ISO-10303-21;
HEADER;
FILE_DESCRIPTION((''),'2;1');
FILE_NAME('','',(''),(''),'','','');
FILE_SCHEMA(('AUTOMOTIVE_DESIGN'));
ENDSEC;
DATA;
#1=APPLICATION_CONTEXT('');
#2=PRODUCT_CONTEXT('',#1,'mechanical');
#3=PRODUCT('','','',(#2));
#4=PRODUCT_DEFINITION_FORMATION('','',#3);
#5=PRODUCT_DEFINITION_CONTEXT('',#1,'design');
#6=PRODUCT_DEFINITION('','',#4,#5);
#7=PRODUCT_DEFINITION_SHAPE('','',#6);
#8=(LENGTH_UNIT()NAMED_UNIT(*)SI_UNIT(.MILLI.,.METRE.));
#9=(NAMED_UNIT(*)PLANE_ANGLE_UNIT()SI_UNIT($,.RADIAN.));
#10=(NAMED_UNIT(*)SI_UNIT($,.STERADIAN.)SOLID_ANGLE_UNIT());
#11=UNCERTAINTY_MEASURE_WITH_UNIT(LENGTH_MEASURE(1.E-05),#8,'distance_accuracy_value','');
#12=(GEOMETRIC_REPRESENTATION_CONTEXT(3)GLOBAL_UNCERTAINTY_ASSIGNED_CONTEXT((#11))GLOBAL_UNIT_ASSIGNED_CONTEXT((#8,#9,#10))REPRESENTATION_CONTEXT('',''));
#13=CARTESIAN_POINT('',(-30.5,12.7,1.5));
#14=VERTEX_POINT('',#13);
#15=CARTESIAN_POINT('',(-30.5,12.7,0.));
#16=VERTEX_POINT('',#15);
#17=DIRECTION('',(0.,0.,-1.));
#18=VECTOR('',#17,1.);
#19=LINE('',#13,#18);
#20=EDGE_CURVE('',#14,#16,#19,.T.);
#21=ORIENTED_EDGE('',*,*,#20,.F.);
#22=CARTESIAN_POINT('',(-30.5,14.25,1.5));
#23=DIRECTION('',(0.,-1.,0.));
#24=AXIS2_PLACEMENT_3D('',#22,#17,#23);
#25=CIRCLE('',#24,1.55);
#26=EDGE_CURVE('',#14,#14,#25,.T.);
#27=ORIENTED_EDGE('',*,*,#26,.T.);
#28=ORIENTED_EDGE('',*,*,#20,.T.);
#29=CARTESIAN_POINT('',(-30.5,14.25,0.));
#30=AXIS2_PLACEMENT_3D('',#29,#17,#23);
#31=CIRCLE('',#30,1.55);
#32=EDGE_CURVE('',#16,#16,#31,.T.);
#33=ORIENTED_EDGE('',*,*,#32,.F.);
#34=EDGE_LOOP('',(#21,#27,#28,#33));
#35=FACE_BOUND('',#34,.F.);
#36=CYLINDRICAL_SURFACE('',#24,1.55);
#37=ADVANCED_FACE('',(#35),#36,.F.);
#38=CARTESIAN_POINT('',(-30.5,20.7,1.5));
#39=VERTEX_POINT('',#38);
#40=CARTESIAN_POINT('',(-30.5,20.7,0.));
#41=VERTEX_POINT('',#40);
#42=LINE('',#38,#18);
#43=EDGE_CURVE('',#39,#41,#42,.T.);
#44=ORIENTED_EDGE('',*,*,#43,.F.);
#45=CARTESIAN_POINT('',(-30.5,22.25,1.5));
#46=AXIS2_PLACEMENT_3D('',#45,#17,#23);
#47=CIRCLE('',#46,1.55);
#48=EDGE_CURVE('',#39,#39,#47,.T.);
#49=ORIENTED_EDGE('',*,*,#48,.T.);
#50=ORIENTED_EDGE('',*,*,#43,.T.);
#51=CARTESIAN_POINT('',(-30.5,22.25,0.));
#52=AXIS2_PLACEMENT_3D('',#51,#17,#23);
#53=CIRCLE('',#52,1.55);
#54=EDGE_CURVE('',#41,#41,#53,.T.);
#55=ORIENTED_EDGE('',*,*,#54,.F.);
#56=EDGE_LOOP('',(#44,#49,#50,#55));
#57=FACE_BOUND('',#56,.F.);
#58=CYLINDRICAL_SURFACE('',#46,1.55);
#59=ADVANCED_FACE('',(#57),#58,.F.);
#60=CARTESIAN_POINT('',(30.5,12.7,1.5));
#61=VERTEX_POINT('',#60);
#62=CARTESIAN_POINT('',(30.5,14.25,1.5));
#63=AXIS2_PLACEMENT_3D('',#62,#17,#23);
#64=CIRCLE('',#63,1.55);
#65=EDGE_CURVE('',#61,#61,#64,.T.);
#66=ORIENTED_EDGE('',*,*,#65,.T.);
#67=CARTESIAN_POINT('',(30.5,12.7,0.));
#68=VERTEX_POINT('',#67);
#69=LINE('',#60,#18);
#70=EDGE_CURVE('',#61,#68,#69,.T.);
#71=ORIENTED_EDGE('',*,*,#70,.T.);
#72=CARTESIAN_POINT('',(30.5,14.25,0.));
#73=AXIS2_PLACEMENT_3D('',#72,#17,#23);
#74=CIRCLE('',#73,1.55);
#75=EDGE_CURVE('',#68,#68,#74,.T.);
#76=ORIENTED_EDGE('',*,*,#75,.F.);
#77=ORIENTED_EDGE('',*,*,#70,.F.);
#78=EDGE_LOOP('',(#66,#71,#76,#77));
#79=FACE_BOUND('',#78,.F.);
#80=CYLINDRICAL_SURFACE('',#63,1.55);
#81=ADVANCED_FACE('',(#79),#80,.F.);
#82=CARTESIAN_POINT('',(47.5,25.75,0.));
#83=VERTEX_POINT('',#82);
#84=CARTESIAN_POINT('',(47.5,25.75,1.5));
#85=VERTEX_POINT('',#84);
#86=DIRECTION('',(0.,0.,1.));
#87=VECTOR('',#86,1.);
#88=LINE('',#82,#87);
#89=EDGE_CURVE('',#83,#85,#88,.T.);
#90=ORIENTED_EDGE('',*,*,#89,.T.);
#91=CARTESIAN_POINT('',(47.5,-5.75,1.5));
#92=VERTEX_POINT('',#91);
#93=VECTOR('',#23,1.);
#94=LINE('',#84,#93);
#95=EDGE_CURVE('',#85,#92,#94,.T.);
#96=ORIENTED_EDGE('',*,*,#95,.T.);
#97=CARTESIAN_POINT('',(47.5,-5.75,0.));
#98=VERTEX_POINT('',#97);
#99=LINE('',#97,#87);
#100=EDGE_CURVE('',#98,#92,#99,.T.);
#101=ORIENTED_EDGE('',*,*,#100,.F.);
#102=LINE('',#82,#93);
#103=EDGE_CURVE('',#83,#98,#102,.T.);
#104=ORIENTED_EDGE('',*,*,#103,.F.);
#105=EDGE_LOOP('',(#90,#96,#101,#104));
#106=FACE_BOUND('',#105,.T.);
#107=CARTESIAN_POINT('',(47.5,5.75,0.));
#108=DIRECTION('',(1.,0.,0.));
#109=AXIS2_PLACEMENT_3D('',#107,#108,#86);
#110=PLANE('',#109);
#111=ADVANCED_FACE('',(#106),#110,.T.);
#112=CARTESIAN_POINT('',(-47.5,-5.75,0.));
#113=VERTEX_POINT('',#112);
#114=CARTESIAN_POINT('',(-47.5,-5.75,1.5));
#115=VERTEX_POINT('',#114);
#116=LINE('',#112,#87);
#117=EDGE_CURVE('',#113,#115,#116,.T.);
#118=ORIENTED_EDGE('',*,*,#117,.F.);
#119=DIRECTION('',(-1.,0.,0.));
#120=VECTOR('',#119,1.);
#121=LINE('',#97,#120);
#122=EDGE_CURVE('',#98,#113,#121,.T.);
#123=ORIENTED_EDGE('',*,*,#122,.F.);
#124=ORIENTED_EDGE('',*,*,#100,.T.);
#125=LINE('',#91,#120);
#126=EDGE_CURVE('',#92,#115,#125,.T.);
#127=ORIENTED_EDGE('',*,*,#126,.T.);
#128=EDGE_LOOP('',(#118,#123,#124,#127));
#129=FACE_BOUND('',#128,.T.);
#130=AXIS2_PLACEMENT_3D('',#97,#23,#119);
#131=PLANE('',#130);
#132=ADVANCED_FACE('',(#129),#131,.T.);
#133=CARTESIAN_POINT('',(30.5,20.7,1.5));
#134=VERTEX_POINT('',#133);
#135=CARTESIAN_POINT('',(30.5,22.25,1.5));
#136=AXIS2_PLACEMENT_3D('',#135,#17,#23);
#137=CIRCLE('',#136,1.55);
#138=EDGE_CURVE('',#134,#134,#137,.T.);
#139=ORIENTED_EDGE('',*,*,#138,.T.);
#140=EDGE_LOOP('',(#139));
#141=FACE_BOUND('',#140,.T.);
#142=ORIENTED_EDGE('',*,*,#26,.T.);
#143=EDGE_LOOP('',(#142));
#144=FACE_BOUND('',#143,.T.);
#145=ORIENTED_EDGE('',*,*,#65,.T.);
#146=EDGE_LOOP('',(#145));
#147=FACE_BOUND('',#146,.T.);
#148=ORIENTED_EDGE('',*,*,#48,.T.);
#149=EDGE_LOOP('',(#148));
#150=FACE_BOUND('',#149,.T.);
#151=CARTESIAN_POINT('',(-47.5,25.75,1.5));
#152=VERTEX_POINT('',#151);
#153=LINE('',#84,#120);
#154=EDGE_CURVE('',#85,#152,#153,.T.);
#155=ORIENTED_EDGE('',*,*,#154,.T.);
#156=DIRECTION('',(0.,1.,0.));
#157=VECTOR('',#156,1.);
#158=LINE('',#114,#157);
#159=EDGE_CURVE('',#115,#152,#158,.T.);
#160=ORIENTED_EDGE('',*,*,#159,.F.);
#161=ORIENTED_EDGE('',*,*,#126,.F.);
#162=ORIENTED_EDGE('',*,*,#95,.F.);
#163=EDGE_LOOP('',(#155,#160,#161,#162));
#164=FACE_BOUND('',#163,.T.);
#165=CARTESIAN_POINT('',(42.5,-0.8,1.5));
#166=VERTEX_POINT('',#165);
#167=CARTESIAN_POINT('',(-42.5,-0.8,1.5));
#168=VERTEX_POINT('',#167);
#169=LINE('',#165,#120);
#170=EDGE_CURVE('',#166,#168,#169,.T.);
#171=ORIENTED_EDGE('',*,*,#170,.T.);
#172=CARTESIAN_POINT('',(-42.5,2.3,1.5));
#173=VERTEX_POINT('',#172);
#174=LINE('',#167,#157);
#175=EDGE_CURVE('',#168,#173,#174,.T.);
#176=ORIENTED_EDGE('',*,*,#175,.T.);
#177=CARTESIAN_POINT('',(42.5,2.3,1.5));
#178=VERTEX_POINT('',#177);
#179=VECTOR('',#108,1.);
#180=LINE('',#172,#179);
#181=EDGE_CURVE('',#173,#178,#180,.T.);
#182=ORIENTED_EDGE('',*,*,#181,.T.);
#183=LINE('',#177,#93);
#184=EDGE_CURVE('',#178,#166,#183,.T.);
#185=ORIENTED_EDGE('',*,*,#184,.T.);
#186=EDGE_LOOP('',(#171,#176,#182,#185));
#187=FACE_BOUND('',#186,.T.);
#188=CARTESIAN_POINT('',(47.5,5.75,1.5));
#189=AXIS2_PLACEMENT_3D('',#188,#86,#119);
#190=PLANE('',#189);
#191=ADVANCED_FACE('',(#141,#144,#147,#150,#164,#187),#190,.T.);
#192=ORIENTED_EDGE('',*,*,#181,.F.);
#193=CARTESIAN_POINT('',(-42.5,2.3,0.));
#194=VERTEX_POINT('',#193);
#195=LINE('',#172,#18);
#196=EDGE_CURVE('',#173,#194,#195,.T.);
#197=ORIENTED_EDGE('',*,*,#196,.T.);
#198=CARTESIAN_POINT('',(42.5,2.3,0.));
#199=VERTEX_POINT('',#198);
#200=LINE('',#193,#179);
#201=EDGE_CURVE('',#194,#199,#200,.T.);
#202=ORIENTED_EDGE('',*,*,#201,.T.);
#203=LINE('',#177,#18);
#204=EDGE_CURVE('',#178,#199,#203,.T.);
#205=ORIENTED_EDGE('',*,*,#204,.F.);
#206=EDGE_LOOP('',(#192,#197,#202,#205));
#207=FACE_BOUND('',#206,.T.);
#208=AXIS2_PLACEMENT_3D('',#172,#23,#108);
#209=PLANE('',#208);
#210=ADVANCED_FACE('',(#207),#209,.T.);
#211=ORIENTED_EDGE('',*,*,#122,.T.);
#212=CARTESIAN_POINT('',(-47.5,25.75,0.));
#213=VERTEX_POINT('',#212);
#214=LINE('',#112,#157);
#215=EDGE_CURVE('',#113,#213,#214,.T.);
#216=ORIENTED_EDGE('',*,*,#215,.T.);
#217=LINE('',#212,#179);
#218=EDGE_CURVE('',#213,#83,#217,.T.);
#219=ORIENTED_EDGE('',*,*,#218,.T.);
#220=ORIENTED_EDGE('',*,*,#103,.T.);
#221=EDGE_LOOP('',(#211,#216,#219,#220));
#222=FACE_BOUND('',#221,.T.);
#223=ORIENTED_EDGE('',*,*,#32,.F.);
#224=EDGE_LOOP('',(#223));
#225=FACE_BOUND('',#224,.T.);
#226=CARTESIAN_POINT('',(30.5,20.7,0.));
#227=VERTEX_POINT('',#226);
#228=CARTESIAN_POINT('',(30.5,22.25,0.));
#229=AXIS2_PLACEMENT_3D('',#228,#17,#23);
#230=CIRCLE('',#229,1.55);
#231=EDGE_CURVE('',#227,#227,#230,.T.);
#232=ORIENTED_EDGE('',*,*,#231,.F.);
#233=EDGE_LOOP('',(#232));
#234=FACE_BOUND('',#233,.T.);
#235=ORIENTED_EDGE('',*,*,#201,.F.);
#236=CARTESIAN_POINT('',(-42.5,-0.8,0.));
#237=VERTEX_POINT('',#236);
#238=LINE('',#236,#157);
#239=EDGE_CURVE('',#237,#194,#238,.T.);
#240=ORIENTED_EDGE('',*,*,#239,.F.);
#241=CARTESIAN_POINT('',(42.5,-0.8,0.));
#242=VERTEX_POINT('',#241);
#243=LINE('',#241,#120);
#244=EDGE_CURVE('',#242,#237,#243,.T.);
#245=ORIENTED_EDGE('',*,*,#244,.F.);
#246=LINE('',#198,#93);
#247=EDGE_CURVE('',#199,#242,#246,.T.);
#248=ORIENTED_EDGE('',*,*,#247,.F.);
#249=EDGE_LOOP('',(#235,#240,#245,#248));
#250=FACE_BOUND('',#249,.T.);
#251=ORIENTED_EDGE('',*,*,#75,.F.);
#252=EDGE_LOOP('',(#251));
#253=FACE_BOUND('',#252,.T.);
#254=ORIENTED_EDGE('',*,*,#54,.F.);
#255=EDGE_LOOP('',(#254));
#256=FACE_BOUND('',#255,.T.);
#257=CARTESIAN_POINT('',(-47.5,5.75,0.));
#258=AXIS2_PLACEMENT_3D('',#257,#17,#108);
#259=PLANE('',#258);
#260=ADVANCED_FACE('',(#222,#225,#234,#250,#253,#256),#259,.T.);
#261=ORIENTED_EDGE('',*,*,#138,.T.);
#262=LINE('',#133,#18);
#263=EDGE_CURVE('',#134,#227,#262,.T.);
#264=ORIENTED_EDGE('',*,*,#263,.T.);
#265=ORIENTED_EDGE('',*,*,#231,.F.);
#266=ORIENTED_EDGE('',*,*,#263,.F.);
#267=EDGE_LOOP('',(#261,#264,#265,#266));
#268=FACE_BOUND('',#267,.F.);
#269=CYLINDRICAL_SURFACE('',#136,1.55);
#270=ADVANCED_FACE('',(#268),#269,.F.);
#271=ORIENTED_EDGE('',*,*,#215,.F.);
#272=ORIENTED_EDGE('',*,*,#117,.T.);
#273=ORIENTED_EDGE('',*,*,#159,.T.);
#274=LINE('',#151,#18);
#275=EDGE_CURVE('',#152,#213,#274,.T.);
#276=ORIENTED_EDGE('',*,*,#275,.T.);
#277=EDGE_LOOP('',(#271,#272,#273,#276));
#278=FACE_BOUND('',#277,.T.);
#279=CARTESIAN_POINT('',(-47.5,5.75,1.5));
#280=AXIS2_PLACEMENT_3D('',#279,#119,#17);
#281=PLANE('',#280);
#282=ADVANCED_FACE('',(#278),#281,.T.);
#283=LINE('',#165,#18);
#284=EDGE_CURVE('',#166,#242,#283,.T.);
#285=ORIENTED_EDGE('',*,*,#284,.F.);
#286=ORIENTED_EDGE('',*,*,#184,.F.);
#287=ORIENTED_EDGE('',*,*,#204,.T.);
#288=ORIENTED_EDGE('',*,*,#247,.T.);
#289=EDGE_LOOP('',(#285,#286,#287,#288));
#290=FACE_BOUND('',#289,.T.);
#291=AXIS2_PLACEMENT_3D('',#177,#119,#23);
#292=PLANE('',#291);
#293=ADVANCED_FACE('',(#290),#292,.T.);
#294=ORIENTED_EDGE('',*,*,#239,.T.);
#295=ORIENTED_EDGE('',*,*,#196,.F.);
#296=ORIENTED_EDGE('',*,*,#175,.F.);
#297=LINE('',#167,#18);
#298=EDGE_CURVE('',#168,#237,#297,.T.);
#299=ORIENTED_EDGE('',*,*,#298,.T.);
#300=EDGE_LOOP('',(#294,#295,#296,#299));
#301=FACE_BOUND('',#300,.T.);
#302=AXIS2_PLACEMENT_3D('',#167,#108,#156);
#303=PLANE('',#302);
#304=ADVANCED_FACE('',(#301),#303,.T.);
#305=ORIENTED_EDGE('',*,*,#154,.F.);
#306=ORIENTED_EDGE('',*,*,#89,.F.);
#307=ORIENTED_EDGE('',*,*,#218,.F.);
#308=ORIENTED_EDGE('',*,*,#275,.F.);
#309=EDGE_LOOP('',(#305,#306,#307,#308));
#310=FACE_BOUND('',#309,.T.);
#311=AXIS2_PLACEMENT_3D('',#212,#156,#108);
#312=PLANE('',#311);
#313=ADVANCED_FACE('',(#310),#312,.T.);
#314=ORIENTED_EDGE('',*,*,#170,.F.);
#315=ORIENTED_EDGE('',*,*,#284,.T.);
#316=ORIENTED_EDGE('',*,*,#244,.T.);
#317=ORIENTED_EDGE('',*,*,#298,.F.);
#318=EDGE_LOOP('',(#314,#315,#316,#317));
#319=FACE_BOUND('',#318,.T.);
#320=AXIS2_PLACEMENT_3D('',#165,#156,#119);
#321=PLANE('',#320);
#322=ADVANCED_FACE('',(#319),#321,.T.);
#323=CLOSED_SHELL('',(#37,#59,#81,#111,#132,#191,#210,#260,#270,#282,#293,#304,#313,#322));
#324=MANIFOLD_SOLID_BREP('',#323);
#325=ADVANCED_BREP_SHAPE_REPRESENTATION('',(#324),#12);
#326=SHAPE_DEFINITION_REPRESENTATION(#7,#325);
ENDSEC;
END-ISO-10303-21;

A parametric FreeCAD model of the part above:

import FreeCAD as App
import Part
import Sketcher


def add_polygon(sketch, points):
    """Adds a closed chain of lines whose ends are joined by coincident constraints."""
    first, n = sketch.GeometryCount, len(points)
    for a, b in zip(points, points[1:] + points[:1]):
        sketch.addGeometry(Part.LineSegment(App.Vector(*a, 0), App.Vector(*b, 0)), False)
    for i in range(n):
        sketch.addConstraint(Sketcher.Constraint("Coincident", first + i, 2, first + (i + 1) % n, 1))

doc = App.newDocument("Part")
body = doc.addObject("PartDesign::Body", "Body")

sketch1 = body.newObject("Sketcher::SketchObject", "Sketch")
sketch1.AttachmentSupport = (doc.getObject("XY_Plane"), [""])
sketch1.MapMode = "FlatFace"
add_polygon(sketch1, [(48, 6), (-48, 6), (-48, -6), (48, -6)])
sketch1.addConstraint(Sketcher.Constraint("Horizontal", 0))
sketch1.addConstraint(Sketcher.Constraint("Vertical", 1))
sketch1.addConstraint(Sketcher.Constraint("Horizontal", 2))
sketch1.addConstraint(Sketcher.Constraint("Vertical", 3))
sketch1.addConstraint(Sketcher.Constraint("Symmetric", 0, 2, 2, 2, -1, 1))
sketch1.addConstraint(Sketcher.Constraint("DistanceX", 0, 2, 0, 1, 95.0))
sketch1.addConstraint(Sketcher.Constraint("DistanceY", 1, 2, 1, 1, 11.5))
pad1 = body.newObject("PartDesign::Pad", "Pad")
pad1.Profile = sketch1
pad1.Length = 1.5

sketch2 = body.newObject("Sketcher::SketchObject", "Sketch001")
sketch2.AttachmentSupport = (doc.getObject("XY_Plane"), [""])
sketch2.MapMode = "FlatFace"
sketch2.AttachmentOffset = App.Placement(App.Vector(0, 0, 1.5), App.Rotation())
add_polygon(sketch2, [(42.5, 2.3), (-42.5, 2.3), (-42.5, -0.8), (42.5, -0.8)])
sketch2.addConstraint(Sketcher.Constraint("Horizontal", 0))
sketch2.addConstraint(Sketcher.Constraint("Vertical", 1))
sketch2.addConstraint(Sketcher.Constraint("Horizontal", 2))
sketch2.addConstraint(Sketcher.Constraint("Vertical", 3))
sketch2.addConstraint(Sketcher.Constraint("DistanceX", 0, 2, 0, 1, 85.0))
sketch2.addConstraint(Sketcher.Constraint("DistanceY", 1, 2, 1, 1, 3.1))
sketch2.addConstraint(Sketcher.Constraint("DistanceX", 0, 2, -1, 1, 42.5))
sketch2.addConstraint(Sketcher.Constraint("DistanceY", -1, 1, 0, 2, 2.3))
pocket1 = body.newObject("PartDesign::Pocket", "Pocket")
pocket1.Profile = sketch2
pocket1.Length = 1.5

sketch3 = body.newObject("Sketcher::SketchObject", "Sketch002")
sketch3.AttachmentSupport = (doc.getObject("XZ_Plane"), [""])
sketch3.MapMode = "FlatFace"
sketch3.AttachmentOffset = App.Placement(App.Vector(0, 0, -5.75), App.Rotation())
add_polygon(sketch3, [(47.5, 0), (-47.5, 0), (-47.5, 1.5), (47.5, 1.5)])
sketch3.addConstraint(Sketcher.Constraint("Horizontal", 0))
sketch3.addConstraint(Sketcher.Constraint("Vertical", 1))
sketch3.addConstraint(Sketcher.Constraint("Horizontal", 2))
sketch3.addConstraint(Sketcher.Constraint("Vertical", 3))
sketch3.addConstraint(Sketcher.Constraint("Symmetric", 0, 2, 3, 2, -1, 1))
sketch3.addConstraint(Sketcher.Constraint("DistanceX", 0, 2, 0, 1, 95.0))
sketch3.addConstraint(Sketcher.Constraint("DistanceY", 1, 1, 1, 2, 1.5))
pad2 = body.newObject("PartDesign::Pad", "Pad001")
pad2.Profile = sketch3
pad2.Length = 20
pad2.Reversed = True

sketch4 = body.newObject("Sketcher::SketchObject", "Sketch003")
sketch4.AttachmentSupport = (doc.getObject("XY_Plane"), [""])
sketch4.MapMode = "FlatFace"
sketch4.AttachmentOffset = App.Placement(App.Vector(0, 0, 1.5), App.Rotation())
sketch4.addGeometry(Part.Circle(App.Vector(30.5, 22.2, 0), App.Vector(0, 0, 1), 1.6), False)
sketch4.addGeometry(Part.Circle(App.Vector(-30.5, 22.2, 0), App.Vector(0, 0, 1), 1.6), False)
sketch4.addGeometry(Part.Circle(App.Vector(-30.5, 14.2, 0), App.Vector(0, 0, 1), 1.6), False)
sketch4.addGeometry(Part.Circle(App.Vector(30.5, 14.2, 0), App.Vector(0, 0, 1), 1.6), False)
sketch4.addConstraint(Sketcher.Constraint("Equal", 0, 1))
sketch4.addConstraint(Sketcher.Constraint("Equal", 1, 2))
sketch4.addConstraint(Sketcher.Constraint("Equal", 2, 3))
sketch4.addConstraint(Sketcher.Constraint("Symmetric", 0, 3, 1, 3, -2))
sketch4.addConstraint(Sketcher.Constraint("Symmetric", 2, 3, 3, 3, -2))
sketch4.addConstraint(Sketcher.Constraint("Vertical", 1, 3, 2, 3))
sketch4.addConstraint(Sketcher.Constraint("Diameter", 0, 3.1))
sketch4.addConstraint(Sketcher.Constraint("DistanceX", 1, 3, 0, 3, 61.0))
sketch4.addConstraint(Sketcher.Constraint("DistanceY", 2, 3, 1, 3, 8.0))
sketch4.addConstraint(Sketcher.Constraint("DistanceY", -1, 1, 0, 3, 22.25))
doc.recompute()
hole = body.newObject("PartDesign::Hole", "Hole")
hole.Profile = sketch4
hole.ThreadType = "None"
hole.Diameter = 3.1
hole.DepthType = "ThroughAll"

doc.recompute()
